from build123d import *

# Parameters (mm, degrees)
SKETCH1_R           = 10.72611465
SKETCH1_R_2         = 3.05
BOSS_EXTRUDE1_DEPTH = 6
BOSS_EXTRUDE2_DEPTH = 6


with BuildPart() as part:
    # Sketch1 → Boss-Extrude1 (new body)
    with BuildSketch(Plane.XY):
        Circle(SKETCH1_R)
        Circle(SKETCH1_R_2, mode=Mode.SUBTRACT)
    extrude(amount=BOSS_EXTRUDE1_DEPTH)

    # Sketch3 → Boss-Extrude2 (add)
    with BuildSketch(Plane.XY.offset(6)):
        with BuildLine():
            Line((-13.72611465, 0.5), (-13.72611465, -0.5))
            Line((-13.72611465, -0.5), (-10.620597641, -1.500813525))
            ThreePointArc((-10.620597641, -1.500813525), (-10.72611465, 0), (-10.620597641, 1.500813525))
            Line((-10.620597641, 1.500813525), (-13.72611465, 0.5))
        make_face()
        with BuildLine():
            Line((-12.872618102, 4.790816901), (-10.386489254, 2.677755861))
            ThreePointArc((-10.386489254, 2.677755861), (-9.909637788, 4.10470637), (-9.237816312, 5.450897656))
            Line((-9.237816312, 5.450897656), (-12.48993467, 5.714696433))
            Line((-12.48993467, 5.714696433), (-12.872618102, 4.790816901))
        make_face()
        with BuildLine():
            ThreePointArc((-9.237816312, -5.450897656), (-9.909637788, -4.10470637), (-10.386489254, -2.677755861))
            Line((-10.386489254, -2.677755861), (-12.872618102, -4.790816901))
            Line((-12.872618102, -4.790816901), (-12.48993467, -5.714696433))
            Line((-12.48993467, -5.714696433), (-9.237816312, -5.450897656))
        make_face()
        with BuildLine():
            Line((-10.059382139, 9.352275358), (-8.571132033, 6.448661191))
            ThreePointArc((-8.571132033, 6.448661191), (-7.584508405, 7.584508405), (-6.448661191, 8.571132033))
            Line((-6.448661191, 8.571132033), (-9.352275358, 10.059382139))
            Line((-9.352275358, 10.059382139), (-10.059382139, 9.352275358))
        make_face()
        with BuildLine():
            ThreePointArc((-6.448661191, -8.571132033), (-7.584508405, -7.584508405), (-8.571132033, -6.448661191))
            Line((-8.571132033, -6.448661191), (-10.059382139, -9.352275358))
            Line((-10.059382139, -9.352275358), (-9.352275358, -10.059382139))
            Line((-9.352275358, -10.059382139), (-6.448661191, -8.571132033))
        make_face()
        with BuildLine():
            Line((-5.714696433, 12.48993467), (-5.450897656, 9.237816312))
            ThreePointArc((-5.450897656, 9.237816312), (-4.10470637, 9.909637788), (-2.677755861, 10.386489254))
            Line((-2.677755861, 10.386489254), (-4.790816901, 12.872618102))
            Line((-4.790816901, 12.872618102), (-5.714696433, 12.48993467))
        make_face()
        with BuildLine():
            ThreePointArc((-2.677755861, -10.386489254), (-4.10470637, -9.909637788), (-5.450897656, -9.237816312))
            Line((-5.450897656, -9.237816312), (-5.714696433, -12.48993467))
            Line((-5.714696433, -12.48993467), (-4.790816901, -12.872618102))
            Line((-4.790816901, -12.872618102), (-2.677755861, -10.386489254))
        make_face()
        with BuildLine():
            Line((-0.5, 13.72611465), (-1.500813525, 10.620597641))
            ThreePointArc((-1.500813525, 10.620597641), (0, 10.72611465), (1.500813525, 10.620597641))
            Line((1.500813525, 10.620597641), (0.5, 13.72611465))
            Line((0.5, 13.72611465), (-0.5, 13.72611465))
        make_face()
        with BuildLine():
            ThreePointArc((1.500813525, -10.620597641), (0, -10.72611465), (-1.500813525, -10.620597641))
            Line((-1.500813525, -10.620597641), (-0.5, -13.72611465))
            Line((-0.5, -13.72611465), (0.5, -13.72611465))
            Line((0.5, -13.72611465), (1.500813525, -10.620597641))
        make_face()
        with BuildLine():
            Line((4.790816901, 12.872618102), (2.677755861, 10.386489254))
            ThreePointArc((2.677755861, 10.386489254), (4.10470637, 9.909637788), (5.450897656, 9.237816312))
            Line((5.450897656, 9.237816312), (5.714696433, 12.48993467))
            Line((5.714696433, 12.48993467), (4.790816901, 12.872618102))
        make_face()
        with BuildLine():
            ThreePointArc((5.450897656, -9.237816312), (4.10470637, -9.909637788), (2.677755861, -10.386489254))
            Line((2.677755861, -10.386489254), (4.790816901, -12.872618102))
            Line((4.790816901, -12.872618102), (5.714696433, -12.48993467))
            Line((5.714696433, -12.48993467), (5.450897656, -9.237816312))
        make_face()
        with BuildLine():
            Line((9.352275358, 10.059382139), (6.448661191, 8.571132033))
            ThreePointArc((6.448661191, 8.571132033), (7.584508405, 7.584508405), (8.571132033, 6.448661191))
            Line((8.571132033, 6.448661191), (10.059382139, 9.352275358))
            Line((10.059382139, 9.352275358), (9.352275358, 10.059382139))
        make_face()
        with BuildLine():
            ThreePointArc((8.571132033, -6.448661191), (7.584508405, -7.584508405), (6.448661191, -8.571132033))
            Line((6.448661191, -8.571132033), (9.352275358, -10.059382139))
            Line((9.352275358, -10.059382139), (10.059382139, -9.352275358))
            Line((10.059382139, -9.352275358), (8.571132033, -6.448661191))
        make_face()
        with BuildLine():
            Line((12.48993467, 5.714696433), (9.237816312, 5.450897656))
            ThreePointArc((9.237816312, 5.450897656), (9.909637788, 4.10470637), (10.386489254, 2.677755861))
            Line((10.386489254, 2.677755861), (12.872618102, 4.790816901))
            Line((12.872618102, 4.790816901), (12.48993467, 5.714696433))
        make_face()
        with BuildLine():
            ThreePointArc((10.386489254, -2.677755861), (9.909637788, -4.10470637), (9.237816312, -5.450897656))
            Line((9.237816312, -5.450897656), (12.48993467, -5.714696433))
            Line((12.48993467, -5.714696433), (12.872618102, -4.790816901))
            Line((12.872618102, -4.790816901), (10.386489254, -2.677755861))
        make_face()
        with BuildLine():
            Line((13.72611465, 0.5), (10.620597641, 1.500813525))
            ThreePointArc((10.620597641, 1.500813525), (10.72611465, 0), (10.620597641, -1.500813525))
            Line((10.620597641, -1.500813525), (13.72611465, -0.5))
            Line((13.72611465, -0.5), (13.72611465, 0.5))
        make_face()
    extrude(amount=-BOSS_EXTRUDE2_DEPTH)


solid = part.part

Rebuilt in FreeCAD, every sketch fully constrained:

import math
import FreeCAD as App
import Part
import Sketcher
Q = App.Units.Quantity

doc = App.newDocument("Part")
params = doc.addObject("Spreadsheet::Sheet", "Params")
for row, (alias, value) in enumerate([
    ("sketch1_diameter", "6.1 mm"),
    ("pad1_length", "6 mm"),
    ("sketch2_width", "1 mm"),
    ("sketch2_length", "1 mm"),
    ("pad2_length", "6 mm"),
], start=1):
    params.set(f"A{row}", alias)
    params.set(f"B{row}", "=" + value)
    params.setAlias(f"B{row}", alias)

body = doc.addObject("PartDesign::Body", "Body")

sketch1 = body.newObject("Sketcher::SketchObject", "Sketch")
sketch1.AttachmentSupport = (doc.getObject("XY_Plane"), [""])
sketch1.MapMode = "FlatFace"
sketch1.addGeometry(Part.Circle(App.Vector(0, 0, 0), App.Vector(0, 0, 1), 10.7), False)
sketch1.addGeometry(Part.Circle(App.Vector(0, 0, 0), App.Vector(0, 0, 1), 3), False)
sketch1.addConstraint(Sketcher.Constraint("Coincident", 0, 3, -1, 1))
sketch1.addConstraint(Sketcher.Constraint("Coincident", 1, 3, -1, 1))
sketch1.addConstraint(Sketcher.Constraint("Diameter", 1, 6.1))
sketch1.addConstraint(Sketcher.Constraint("Diameter", 0, 21.452229))
sketch1.setExpression("Constraints[2]", "Params.sketch1_diameter")
pad1 = body.newObject("PartDesign::Pad", "Pad")
pad1.Profile = sketch1
pad1.setExpression("Length", "Params.pad1_length")

sketch2 = body.newObject("Sketcher::SketchObject", "Sketch001")
sketch2.AttachmentSupport = (doc.getObject("XY_Plane"), [""])
sketch2.MapMode = "FlatFace"
sketch2.AttachmentOffset = App.Placement(App.Vector(0, 0, 6), App.Rotation())
sketch2.addGeometry(Part.LineSegment(App.Vector(-13.7, 0.5, 0), App.Vector(-13.7, -0.5, 0)), False)
sketch2.addGeometry(Part.LineSegment(App.Vector(-13.7, -0.5, 0), App.Vector(-10.6, -1.5, 0)), False)
sketch2.addGeometry(Part.ArcOfCircle(Part.Circle(App.Vector(0, 0, 0), App.Vector(0, 0, 1), 10.7), math.radians(171.96), math.radians(188.04)), False)
sketch2.addGeometry(Part.LineSegment(App.Vector(-10.6, 1.5, 0), App.Vector(-13.7, 0.5, 0)), False)
sketch2.addGeometry(Part.LineSegment(App.Vector(-12.9, 4.8, 0), App.Vector(-10.4, 2.7, 0)), False)
sketch2.addGeometry(Part.ArcOfCircle(Part.Circle(App.Vector(0, 0, 0), App.Vector(0, 0, 1), 10.7), math.radians(149.46), math.radians(165.54)), False)
sketch2.addGeometry(Part.LineSegment(App.Vector(-9.2, 5.5, 0), App.Vector(-12.5, 5.7, 0)), False)
sketch2.addGeometry(Part.LineSegment(App.Vector(-12.5, 5.7, 0), App.Vector(-12.9, 4.8, 0)), False)
sketch2.addGeometry(Part.ArcOfCircle(Part.Circle(App.Vector(0, 0, 0), App.Vector(0, 0, 1), 10.7), math.radians(-165.54), math.radians(-149.46)), False)
sketch2.addGeometry(Part.LineSegment(App.Vector(-10.4, -2.7, 0), App.Vector(-12.9, -4.8, 0)), False)
sketch2.addGeometry(Part.LineSegment(App.Vector(-12.9, -4.8, 0), App.Vector(-12.5, -5.7, 0)), False)
sketch2.addGeometry(Part.LineSegment(App.Vector(-12.5, -5.7, 0), App.Vector(-9.2, -5.5, 0)), False)
sketch2.addGeometry(Part.LineSegment(App.Vector(-10.1, 9.4, 0), App.Vector(-8.6, 6.4, 0)), False)
sketch2.addGeometry(Part.ArcOfCircle(Part.Circle(App.Vector(0, 0, 0), App.Vector(0, 0, 1), 10.7), math.radians(126.96), math.radians(143.04)), False)
sketch2.addGeometry(Part.LineSegment(App.Vector(-6.4, 8.6, 0), App.Vector(-9.4, 10.1, 0)), False)
sketch2.addGeometry(Part.LineSegment(App.Vector(-9.4, 10.1, 0), App.Vector(-10.1, 9.4, 0)), False)
sketch2.addGeometry(Part.ArcOfCircle(Part.Circle(App.Vector(0, 0, 0), App.Vector(0, 0, 1), 10.7), math.radians(-143.04), math.radians(-126.96)), False)
sketch2.addGeometry(Part.LineSegment(App.Vector(-8.6, -6.4, 0), App.Vector(-10.1, -9.4, 0)), False)
sketch2.addGeometry(Part.LineSegment(App.Vector(-10.1, -9.4, 0), App.Vector(-9.4, -10.1, 0)), False)
sketch2.addGeometry(Part.LineSegment(App.Vector(-9.4, -10.1, 0), App.Vector(-6.4, -8.6, 0)), False)
sketch2.addGeometry(Part.LineSegment(App.Vector(-5.7, 12.5, 0), App.Vector(-5.5, 9.2, 0)), False)
sketch2.addGeometry(Part.ArcOfCircle(Part.Circle(App.Vector(0, 0, 0), App.Vector(0, 0, 1), 10.7), math.radians(104.46), math.radians(120.54)), False)
sketch2.addGeometry(Part.LineSegment(App.Vector(-2.7, 10.4, 0), App.Vector(-4.8, 12.9, 0)), False)
sketch2.addGeometry(Part.LineSegment(App.Vector(-4.8, 12.9, 0), App.Vector(-5.7, 12.5, 0)), False)
sketch2.addGeometry(Part.ArcOfCircle(Part.Circle(App.Vector(0, 0, 0), App.Vector(0, 0, 1), 10.7), math.radians(-120.54), math.radians(-104.46)), False)
sketch2.addGeometry(Part.LineSegment(App.Vector(-5.5, -9.2, 0), App.Vector(-5.7, -12.5, 0)), False)
sketch2.addGeometry(Part.LineSegment(App.Vector(-5.7, -12.5, 0), App.Vector(-4.8, -12.9, 0)), False)
sketch2.addGeometry(Part.LineSegment(App.Vector(-4.8, -12.9, 0), App.Vector(-2.7, -10.4, 0)), False)
sketch2.addGeometry(Part.LineSegment(App.Vector(-0.5, 13.7, 0), App.Vector(-1.5, 10.6, 0)), False)
sketch2.addGeometry(Part.ArcOfCircle(Part.Circle(App.Vector(0, 0, 0), App.Vector(0, 0, 1), 10.7), math.radians(81.96), math.radians(98.04)), False)
sketch2.addGeometry(Part.LineSegment(App.Vector(1.5, 10.6, 0), App.Vector(0.5, 13.7, 0)), False)
sketch2.addGeometry(Part.LineSegment(App.Vector(0.5, 13.7, 0), App.Vector(-0.5, 13.7, 0)), False)
sketch2.addGeometry(Part.ArcOfCircle(Part.Circle(App.Vector(0, 0, 0), App.Vector(0, 0, 1), 10.7), math.radians(-98.04), math.radians(-81.96)), False)
sketch2.addGeometry(Part.LineSegment(App.Vector(-1.5, -10.6, 0), App.Vector(-0.5, -13.7, 0)), False)
sketch2.addGeometry(Part.LineSegment(App.Vector(-0.5, -13.7, 0), App.Vector(0.5, -13.7, 0)), False)
sketch2.addGeometry(Part.LineSegment(App.Vector(0.5, -13.7, 0), App.Vector(1.5, -10.6, 0)), False)
sketch2.addGeometry(Part.LineSegment(App.Vector(4.8, 12.9, 0), App.Vector(2.7, 10.4, 0)), False)
sketch2.addGeometry(Part.ArcOfCircle(Part.Circle(App.Vector(0, 0, 0), App.Vector(0, 0, 1), 10.7), math.radians(59.46), math.radians(75.54)), False)
sketch2.addGeometry(Part.LineSegment(App.Vector(5.5, 9.2, 0), App.Vector(5.7, 12.5, 0)), False)
sketch2.addGeometry(Part.LineSegment(App.Vector(5.7, 12.5, 0), App.Vector(4.8, 12.9, 0)), False)
sketch2.addGeometry(Part.ArcOfCircle(Part.Circle(App.Vector(0, 0, 0), App.Vector(0, 0, 1), 10.7), math.radians(-75.54), math.radians(-59.46)), False)
sketch2.addGeometry(Part.LineSegment(App.Vector(2.7, -10.4, 0), App.Vector(4.8, -12.9, 0)), False)
sketch2.addGeometry(Part.LineSegment(App.Vector(4.8, -12.9, 0), App.Vector(5.7, -12.5, 0)), False)
sketch2.addGeometry(Part.LineSegment(App.Vector(5.7, -12.5, 0), App.Vector(5.5, -9.2, 0)), False)
sketch2.addGeometry(Part.LineSegment(App.Vector(9.4, 10.1, 0), App.Vector(6.4, 8.6, 0)), False)
sketch2.addGeometry(Part.ArcOfCircle(Part.Circle(App.Vector(0, 0, 0), App.Vector(0, 0, 1), 10.7), math.radians(36.96), math.radians(53.04)), False)
sketch2.addGeometry(Part.LineSegment(App.Vector(8.6, 6.4, 0), App.Vector(10.1, 9.4, 0)), False)
sketch2.addGeometry(Part.LineSegment(App.Vector(10.1, 9.4, 0), App.Vector(9.4, 10.1, 0)), False)
sketch2.addGeometry(Part.ArcOfCircle(Part.Circle(App.Vector(0, 0, 0), App.Vector(0, 0, 1), 10.7), math.radians(-53.04), math.radians(-36.96)), False)
sketch2.addGeometry(Part.LineSegment(App.Vector(6.4, -8.6, 0), App.Vector(9.4, -10.1, 0)), False)
sketch2.addGeometry(Part.LineSegment(App.Vector(9.4, -10.1, 0), App.Vector(10.1, -9.4, 0)), False)
sketch2.addGeometry(Part.LineSegment(App.Vector(10.1, -9.4, 0), App.Vector(8.6, -6.4, 0)), False)
sketch2.addGeometry(Part.LineSegment(App.Vector(12.5, 5.7, 0), App.Vector(9.2, 5.5, 0)), False)
sketch2.addGeometry(Part.ArcOfCircle(Part.Circle(App.Vector(0, 0, 0), App.Vector(0, 0, 1), 10.7), math.radians(14.46), math.radians(30.54)), False)
sketch2.addGeometry(Part.LineSegment(App.Vector(10.4, 2.7, 0), App.Vector(12.9, 4.8, 0)), False)
sketch2.addGeometry(Part.LineSegment(App.Vector(12.9, 4.8, 0), App.Vector(12.5, 5.7, 0)), False)
sketch2.addGeometry(Part.ArcOfCircle(Part.Circle(App.Vector(0, 0, 0), App.Vector(0, 0, 1), 10.7), math.radians(-30.54), math.radians(-14.46)), False)
sketch2.addGeometry(Part.LineSegment(App.Vector(9.2, -5.5, 0), App.Vector(12.5, -5.7, 0)), False)
sketch2.addGeometry(Part.LineSegment(App.Vector(12.5, -5.7, 0), App.Vector(12.9, -4.8, 0)), False)
sketch2.addGeometry(Part.LineSegment(App.Vector(12.9, -4.8, 0), App.Vector(10.4, -2.7, 0)), False)
sketch2.addGeometry(Part.LineSegment(App.Vector(13.7, 0.5, 0), App.Vector(10.6, 1.5, 0)), False)
sketch2.addGeometry(Part.ArcOfCircle(Part.Circle(App.Vector(0, 0, 0), App.Vector(0, 0, 1), 10.7), math.radians(-8.04), math.radians(8.04)), False)
sketch2.addGeometry(Part.LineSegment(App.Vector(10.6, -1.5, 0), App.Vector(13.7, -0.5, 0)), False)
sketch2.addGeometry(Part.LineSegment(App.Vector(13.7, -0.5, 0), App.Vector(13.7, 0.5, 0)), False)
sketch2.addConstraint(Sketcher.Constraint("Coincident", 0, 2, 1, 1))
sketch2.addConstraint(Sketcher.Constraint("Coincident", 1, 2, 2, 2))
sketch2.addConstraint(Sketcher.Constraint("Coincident", 2, 1, 3, 1))
sketch2.addConstraint(Sketcher.Constraint("Coincident", 3, 2, 0, 1))
sketch2.addConstraint(Sketcher.Constraint("Coincident", 4, 2, 5, 2))
sketch2.addConstraint(Sketcher.Constraint("Coincident", 5, 1, 6, 1))
sketch2.addConstraint(Sketcher.Constraint("Coincident", 6, 2, 7, 1))
sketch2.addConstraint(Sketcher.Constraint("Coincident", 7, 2, 4, 1))
sketch2.addConstraint(Sketcher.Constraint("Coincident", 8, 1, 9, 1))
sketch2.addConstraint(Sketcher.Constraint("Coincident", 9, 2, 10, 1))
sketch2.addConstraint(Sketcher.Constraint("Coincident", 10, 2, 11, 1))
sketch2.addConstraint(Sketcher.Constraint("Coincident", 11, 2, 8, 2))
sketch2.addConstraint(Sketcher.Constraint("Coincident", 12, 2, 13, 2))
sketch2.addConstraint(Sketcher.Constraint("Coincident", 13, 1, 14, 1))
sketch2.addConstraint(Sketcher.Constraint("Coincident", 14, 2, 15, 1))
sketch2.addConstraint(Sketcher.Constraint("Coincident", 15, 2, 12, 1))
sketch2.addConstraint(Sketcher.Constraint("Coincident", 16, 1, 17, 1))
sketch2.addConstraint(Sketcher.Constraint("Coincident", 17, 2, 18, 1))
sketch2.addConstraint(Sketcher.Constraint("Coincident", 18, 2, 19, 1))
sketch2.addConstraint(Sketcher.Constraint("Coincident", 19, 2, 16, 2))
sketch2.addConstraint(Sketcher.Constraint("Coincident", 20, 2, 21, 2))
sketch2.addConstraint(Sketcher.Constraint("Coincident", 21, 1, 22, 1))
sketch2.addConstraint(Sketcher.Constraint("Coincident", 22, 2, 23, 1))
sketch2.addConstraint(Sketcher.Constraint("Coincident", 23, 2, 20, 1))
sketch2.addConstraint(Sketcher.Constraint("Coincident", 24, 1, 25, 1))
sketch2.addConstraint(Sketcher.Constraint("Coincident", 25, 2, 26, 1))
sketch2.addConstraint(Sketcher.Constraint("Coincident", 26, 2, 27, 1))
sketch2.addConstraint(Sketcher.Constraint("Coincident", 27, 2, 24, 2))
sketch2.addConstraint(Sketcher.Constraint("Coincident", 28, 2, 29, 2))
sketch2.addConstraint(Sketcher.Constraint("Coincident", 29, 1, 30, 1))
sketch2.addConstraint(Sketcher.Constraint("Coincident", 30, 2, 31, 1))
sketch2.addConstraint(Sketcher.Constraint("Coincident", 31, 2, 28, 1))
sketch2.addConstraint(Sketcher.Constraint("Coincident", 32, 1, 33, 1))
sketch2.addConstraint(Sketcher.Constraint("Coincident", 33, 2, 34, 1))
sketch2.addConstraint(Sketcher.Constraint("Coincident", 34, 2, 35, 1))
sketch2.addConstraint(Sketcher.Constraint("Coincident", 35, 2, 32, 2))
sketch2.addConstraint(Sketcher.Constraint("Coincident", 36, 2, 37, 2))
sketch2.addConstraint(Sketcher.Constraint("Coincident", 37, 1, 38, 1))
sketch2.addConstraint(Sketcher.Constraint("Coincident", 38, 2, 39, 1))
sketch2.addConstraint(Sketcher.Constraint("Coincident", 39, 2, 36, 1))
sketch2.addConstraint(Sketcher.Constraint("Coincident", 40, 1, 41, 1))
sketch2.addConstraint(Sketcher.Constraint("Coincident", 41, 2, 42, 1))
sketch2.addConstraint(Sketcher.Constraint("Coincident", 42, 2, 43, 1))
sketch2.addConstraint(Sketcher.Constraint("Coincident", 43, 2, 40, 2))
sketch2.addConstraint(Sketcher.Constraint("Coincident", 44, 2, 45, 2))
sketch2.addConstraint(Sketcher.Constraint("Coincident", 45, 1, 46, 1))
sketch2.addConstraint(Sketcher.Constraint("Coincident", 46, 2, 47, 1))
sketch2.addConstraint(Sketcher.Constraint("Coincident", 47, 2, 44, 1))
sketch2.addConstraint(Sketcher.Constraint("Coincident", 48, 1, 49, 1))
sketch2.addConstraint(Sketcher.Constraint("Coincident", 49, 2, 50, 1))
sketch2.addConstraint(Sketcher.Constraint("Coincident", 50, 2, 51, 1))
sketch2.addConstraint(Sketcher.Constraint("Coincident", 51, 2, 48, 2))
sketch2.addConstraint(Sketcher.Constraint("Coincident", 52, 2, 53, 2))
sketch2.addConstraint(Sketcher.Constraint("Coincident", 53, 1, 54, 1))
sketch2.addConstraint(Sketcher.Constraint("Coincident", 54, 2, 55, 1))
sketch2.addConstraint(Sketcher.Constraint("Coincident", 55, 2, 52, 1))
sketch2.addConstraint(Sketcher.Constraint("Coincident", 56, 1, 57, 1))
sketch2.addConstraint(Sketcher.Constraint("Coincident", 57, 2, 58, 1))
sketch2.addConstraint(Sketcher.Constraint("Coincident", 58, 2, 59, 1))
sketch2.addConstraint(Sketcher.Constraint("Coincident", 59, 2, 56, 2))
sketch2.addConstraint(Sketcher.Constraint("Coincident", 60, 2, 61, 2))
sketch2.addConstraint(Sketcher.Constraint("Coincident", 61, 1, 62, 1))
sketch2.addConstraint(Sketcher.Constraint("Coincident", 62, 2, 63, 1))
sketch2.addConstraint(Sketcher.Constraint("Coincident", 63, 2, 60, 1))
sketch2.addConstraint(Sketcher.Constraint("Vertical", 0))
sketch2.addConstraint(Sketcher.Constraint("Horizontal", 31))
sketch2.addConstraint(Sketcher.Constraint("Horizontal", 34))
sketch2.addConstraint(Sketcher.Constraint("Vertical", 63))
sketch2.addConstraint(Sketcher.Constraint("Coincident", 2, 3, -1, 1))
sketch2.addConstraint(Sketcher.Constraint("Coincident", 5, 3, -1, 1))
sketch2.addConstraint(Sketcher.Constraint("Coincident", 8, 3, -1, 1))
sketch2.addConstraint(Sketcher.Constraint("Coincident", 13, 3, -1, 1))
sketch2.addConstraint(Sketcher.Constraint("Coincident", 16, 3, -1, 1))
sketch2.addConstraint(Sketcher.Constraint("Coincident", 21, 3, -1, 1))
sketch2.addConstraint(Sketcher.Constraint("Coincident", 24, 3, -1, 1))
sketch2.addConstraint(Sketcher.Constraint("Coincident", 29, 3, -1, 1))
sketch2.addConstraint(Sketcher.Constraint("Coincident", 32, 3, -1, 1))
sketch2.addConstraint(Sketcher.Constraint("Coincident", 37, 3, -1, 1))
sketch2.addConstraint(Sketcher.Constraint("Coincident", 40, 3, -1, 1))
sketch2.addConstraint(Sketcher.Constraint("Coincident", 45, 3, -1, 1))
sketch2.addConstraint(Sketcher.Constraint("Coincident", 48, 3, -1, 1))
sketch2.addConstraint(Sketcher.Constraint("Coincident", 53, 3, -1, 1))
sketch2.addConstraint(Sketcher.Constraint("Coincident", 56, 3, -1, 1))
sketch2.addConstraint(Sketcher.Constraint("Coincident", 61, 3, -1, 1))
sketch2.addConstraint(Sketcher.Constraint("Equal", 2, 5))
sketch2.addConstraint(Sketcher.Constraint("Equal", 5, 8))
sketch2.addConstraint(Sketcher.Constraint("Equal", 8, 13))
sketch2.addConstraint(Sketcher.Constraint("Equal", 13, 16))
sketch2.addConstraint(Sketcher.Constraint("Equal", 16, 21))
sketch2.addConstraint(Sketcher.Constraint("Equal", 21, 24))
sketch2.addConstraint(Sketcher.Constraint("Equal", 24, 29))
sketch2.addConstraint(Sketcher.Constraint("Equal", 29, 32))
sketch2.addConstraint(Sketcher.Constraint("Equal", 32, 37))
sketch2.addConstraint(Sketcher.Constraint("Equal", 37, 40))
sketch2.addConstraint(Sketcher.Constraint("Equal", 40, 45))
sketch2.addConstraint(Sketcher.Constraint("Equal", 45, 48))
sketch2.addConstraint(Sketcher.Constraint("Equal", 48, 53))
sketch2.addConstraint(Sketcher.Constraint("Equal", 53, 56))
sketch2.addConstraint(Sketcher.Constraint("Equal", 56, 61))
sketch2.addConstraint(Sketcher.Constraint("Symmetric", 30, 2, 33, 2, -1, 1))
sketch2.addConstraint(Sketcher.Constraint("Symmetric", 25, 2, 38, 2, -1, 1))
sketch2.addConstraint(Sketcher.Constraint("Symmetric", 26, 2, 39, 2, -1, 1))
sketch2.addConstraint(Sketcher.Constraint("Symmetric", 22, 2, 41, 2, -1, 1))
sketch2.addConstraint(Sketcher.Constraint("Symmetric", 23, 2, 42, 2, -1, 1))
sketch2.addConstraint(Sketcher.Constraint("Symmetric", 17, 2, 46, 2, -1, 1))
sketch2.addConstraint(Sketcher.Constraint("Symmetric", 18, 2, 47, 2, -1, 1))
sketch2.addConstraint(Sketcher.Constraint("Symmetric", 14, 2, 49, 2, -1, 1))
sketch2.addConstraint(Sketcher.Constraint("Symmetric", 15, 2, 50, 2, -1, 1))
sketch2.addConstraint(Sketcher.Constraint("Symmetric", 9, 2, 54, 2, -1, 1))
sketch2.addConstraint(Sketcher.Constraint("Symmetric", 10, 2, 55, 2, -1, 1))
sketch2.addConstraint(Sketcher.Constraint("Symmetric", 6, 2, 57, 2, -1, 1))
sketch2.addConstraint(Sketcher.Constraint("Symmetric", 7, 2, 58, 2, -1, 1))
sketch2.addConstraint(Sketcher.Constraint("Symmetric", 3, 2, 62, 2, -1, 1))
sketch2.addConstraint(Sketcher.Constraint("Symmetric", 23, 2, 38, 2, -2))
sketch2.addConstraint(Sketcher.Constraint("Symmetric", 22, 2, 39, 2, -2))
sketch2.addConstraint(Sketcher.Constraint("Symmetric", 15, 2, 46, 2, -2))
sketch2.addConstraint(Sketcher.Constraint("Symmetric", 14, 2, 47, 2, -2))
sketch2.addConstraint(Sketcher.Constraint("Symmetric", 7, 2, 54, 2, -2))
sketch2.addConstraint(Sketcher.Constraint("Symmetric", 6, 2, 55, 2, -2))
sketch2.addConstraint(Sketcher.Constraint("Perpendicular", 14, 17))
sketch2.addConstraint(Sketcher.Constraint("Perpendicular", 15, 18))
sketch2.addConstraint(Sketcher.Constraint("Perpendicular", 12, 19))
sketch2.addConstraint(Sketcher.Constraint("Perpendicular", 11, 20))
sketch2.addConstraint(Sketcher.Constraint("Perpendicular", 9, 22))
sketch2.addConstraint(Sketcher.Constraint("Perpendicular", 10, 23))
sketch2.addConstraint(Sketcher.Constraint("Perpendicular", 6, 25))
sketch2.addConstraint(Sketcher.Constraint("Perpendicular", 4, 27))
sketch2.addConstraint(Sketcher.Constraint("Perpendicular", 1, 28))
sketch2.addConstraint(Sketcher.Constraint("Perpendicular", 3, 30))
sketch2.addConstraint(Sketcher.Constraint("Parallel", 30, 33))
sketch2.addConstraint(Sketcher.Constraint("Parallel", 28, 35))
sketch2.addConstraint(Sketcher.Constraint("Parallel", 27, 36))
sketch2.addConstraint(Sketcher.Constraint("Parallel", 25, 38))
sketch2.addConstraint(Sketcher.Constraint("Parallel", 22, 41))
sketch2.addConstraint(Sketcher.Constraint("Parallel", 20, 43))
sketch2.addConstraint(Sketcher.Constraint("Parallel", 19, 44))
sketch2.addConstraint(Sketcher.Constraint("Parallel", 17, 46))
sketch2.addConstraint(Sketcher.Constraint("Perpendicular", 46, 49))
sketch2.addConstraint(Sketcher.Constraint("Perpendicular", 44, 51))
sketch2.addConstraint(Sketcher.Constraint("Perpendicular", 43, 52))
sketch2.addConstraint(Sketcher.Constraint("Perpendicular", 41, 54))
sketch2.addConstraint(Sketcher.Constraint("Perpendicular", 38, 57))
sketch2.addConstraint(Sketcher.Constraint("Perpendicular", 36, 59))
sketch2.addConstraint(Sketcher.Constraint("Perpendicular", 35, 60))
sketch2.addConstraint(Sketcher.Constraint("Perpendicular", 33, 62))
sketch2.addConstraint(Sketcher.Constraint("Horizontal", 28, 2, 29, 1))
sketch2.addConstraint(Sketcher.Constraint("Horizontal", 32, 1, 35, 2))
sketch2.addConstraint(Sketcher.Constraint("Horizontal", 21, 1, 36, 2))
sketch2.addConstraint(Sketcher.Constraint("Horizontal", 20, 2, 37, 1))
sketch2.addConstraint(Sketcher.Constraint("Horizontal", 13, 1, 44, 2))
sketch2.addConstraint(Sketcher.Constraint("Horizontal", 2, 1, 60, 2))
sketch2.addConstraint(Sketcher.Constraint("Horizontal", 1, 2, 61, 1))
sketch2.addConstraint(Sketcher.Constraint("Horizontal", 0, 2, 62, 2))
sketch2.addConstraint(Sketcher.Constraint("Equal", 34, 0))
sketch2.addConstraint(Sketcher.Constraint("Equal", 3, 4))
sketch2.addConstraint(Sketcher.Constraint("Equal", 4, 6))
sketch2.addConstraint(Sketcher.Constraint("Equal", 11, 12))
sketch2.addConstraint(Sketcher.Constraint("Equal", 12, 14))
sketch2.addConstraint(Sketcher.Constraint("Equal", 10, 15))
sketch2.addConstraint(Sketcher.Constraint("Equal", 19, 20))
sketch2.addConstraint(Sketcher.Constraint("Equal", 20, 22))
sketch2.addConstraint(Sketcher.Constraint("Equal", 18, 23))
sketch2.addConstraint(Sketcher.Constraint("Equal", 27, 28))
sketch2.addConstraint(Sketcher.Constraint("DistanceX", 31, 2, 31, 1, 1.0))
sketch2.addConstraint(Sketcher.Constraint("Distance", 7, 1.0))
sketch2.addConstraint(Sketcher.Constraint("Angle", 7, Q("-112.5 deg")))
sketch2.addConstraint(Sketcher.Constraint("Radius", 2, 10.726115))
sketch2.addConstraint(Sketcher.Constraint("Distance", 1, 3.2628))
sketch2.addConstraint(Sketcher.Constraint("DistanceX", 4, 2, -1, 1, 10.386489))
sketch2.addConstraint(Sketcher.Constraint("DistanceX", 7, 2, -1, 1, 12.872618))
sketch2.addConstraint(Sketcher.Constraint("DistanceY", -1, 1, 12, 2, 6.448661))
sketch2.addConstraint(Sketcher.Constraint("DistanceX", 0, 2, -1, 1, 13.726115))
sketch2.setExpression("Constraints[163]", "Params.sketch2_width")
sketch2.setExpression("Constraints[164]", "Params.sketch2_length")
pad2 = body.newObject("PartDesign::Pad", "Pad001")
pad2.Profile = sketch2
pad2.setExpression("Length", "Params.pad2_length")
pad2.Reversed = True

doc.recompute()
